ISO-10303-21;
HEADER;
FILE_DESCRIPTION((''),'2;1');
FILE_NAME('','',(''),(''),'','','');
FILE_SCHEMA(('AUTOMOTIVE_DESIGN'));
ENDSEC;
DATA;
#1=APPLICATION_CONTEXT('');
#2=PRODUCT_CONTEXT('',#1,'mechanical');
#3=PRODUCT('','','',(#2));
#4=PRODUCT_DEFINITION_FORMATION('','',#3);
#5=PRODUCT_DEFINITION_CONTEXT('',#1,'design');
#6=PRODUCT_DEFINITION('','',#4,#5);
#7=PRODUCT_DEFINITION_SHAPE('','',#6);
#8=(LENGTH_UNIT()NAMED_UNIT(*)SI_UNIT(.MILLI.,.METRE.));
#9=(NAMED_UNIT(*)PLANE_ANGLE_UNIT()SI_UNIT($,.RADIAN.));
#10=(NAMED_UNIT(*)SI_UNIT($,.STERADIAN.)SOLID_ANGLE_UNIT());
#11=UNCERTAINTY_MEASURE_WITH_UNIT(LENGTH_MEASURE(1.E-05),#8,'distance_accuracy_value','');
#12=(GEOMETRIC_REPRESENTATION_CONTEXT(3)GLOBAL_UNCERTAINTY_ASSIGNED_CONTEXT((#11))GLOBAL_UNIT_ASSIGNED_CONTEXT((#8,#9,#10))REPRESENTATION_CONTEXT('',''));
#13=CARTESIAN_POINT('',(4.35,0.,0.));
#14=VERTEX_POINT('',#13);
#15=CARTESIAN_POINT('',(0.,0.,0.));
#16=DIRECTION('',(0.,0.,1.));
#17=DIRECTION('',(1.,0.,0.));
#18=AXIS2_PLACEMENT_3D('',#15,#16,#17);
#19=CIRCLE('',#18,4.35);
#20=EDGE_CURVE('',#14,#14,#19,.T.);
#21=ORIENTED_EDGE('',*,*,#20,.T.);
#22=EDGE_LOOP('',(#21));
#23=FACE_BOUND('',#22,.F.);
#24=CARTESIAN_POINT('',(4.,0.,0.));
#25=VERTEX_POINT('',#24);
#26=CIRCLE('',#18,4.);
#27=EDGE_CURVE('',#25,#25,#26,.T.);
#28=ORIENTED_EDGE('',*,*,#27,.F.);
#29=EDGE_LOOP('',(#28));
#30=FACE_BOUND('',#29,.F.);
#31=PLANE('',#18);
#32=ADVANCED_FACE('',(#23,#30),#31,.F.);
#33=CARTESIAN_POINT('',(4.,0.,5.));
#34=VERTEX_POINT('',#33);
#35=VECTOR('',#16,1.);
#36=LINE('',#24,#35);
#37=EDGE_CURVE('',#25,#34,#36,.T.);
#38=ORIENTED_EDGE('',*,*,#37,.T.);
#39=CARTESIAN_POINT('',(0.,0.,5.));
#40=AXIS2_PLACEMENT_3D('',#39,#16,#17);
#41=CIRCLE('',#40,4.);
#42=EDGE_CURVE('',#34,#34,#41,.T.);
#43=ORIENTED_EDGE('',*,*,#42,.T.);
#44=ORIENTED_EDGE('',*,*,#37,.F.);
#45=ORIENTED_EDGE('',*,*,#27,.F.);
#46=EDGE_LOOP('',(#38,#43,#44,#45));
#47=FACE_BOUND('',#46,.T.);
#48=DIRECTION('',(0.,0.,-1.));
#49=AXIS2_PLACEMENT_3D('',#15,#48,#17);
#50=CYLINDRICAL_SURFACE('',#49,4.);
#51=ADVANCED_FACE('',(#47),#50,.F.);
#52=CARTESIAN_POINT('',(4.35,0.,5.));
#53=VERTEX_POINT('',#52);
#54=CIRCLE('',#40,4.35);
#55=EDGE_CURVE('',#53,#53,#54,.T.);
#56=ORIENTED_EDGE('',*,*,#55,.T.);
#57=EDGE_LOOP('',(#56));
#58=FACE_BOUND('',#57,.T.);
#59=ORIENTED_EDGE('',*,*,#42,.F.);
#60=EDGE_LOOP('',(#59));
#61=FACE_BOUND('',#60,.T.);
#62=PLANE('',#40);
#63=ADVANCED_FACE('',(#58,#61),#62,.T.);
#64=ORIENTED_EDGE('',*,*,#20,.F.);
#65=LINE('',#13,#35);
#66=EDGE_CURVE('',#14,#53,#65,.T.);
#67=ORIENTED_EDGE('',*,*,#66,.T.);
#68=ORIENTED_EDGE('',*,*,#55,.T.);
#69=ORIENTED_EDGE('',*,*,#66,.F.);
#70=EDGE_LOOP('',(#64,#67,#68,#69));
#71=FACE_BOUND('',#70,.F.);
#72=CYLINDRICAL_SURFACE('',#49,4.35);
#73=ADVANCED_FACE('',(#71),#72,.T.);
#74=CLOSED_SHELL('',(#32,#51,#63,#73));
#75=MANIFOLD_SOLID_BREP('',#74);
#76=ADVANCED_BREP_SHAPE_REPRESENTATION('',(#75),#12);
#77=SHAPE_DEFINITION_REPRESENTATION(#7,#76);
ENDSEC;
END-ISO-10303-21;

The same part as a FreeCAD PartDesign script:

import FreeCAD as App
import Part
import Sketcher

V = App.Vector
Q = App.Units.Quantity

doc = App.newDocument("Part")
body = doc.addObject("PartDesign::Body", "Body")

# Sketch on XY plane
sketch1 = body.newObject("Sketcher::SketchObject", "Sketch")
sketch1.AttachmentSupport = (doc.getObject("XY_Plane"), [""])
sketch1.MapMode = "FlatFace"
sketch1.addGeometry(Part.Circle(V(0, 0, 0), V(0, 0, 1), 4.35), False)
sketch1.addGeometry(Part.Circle(V(0, 0, 0), V(0, 0, 1), 4), False)
sketch1.addConstraint(Sketcher.Constraint("Coincident", 0, 3, -1, 1))
sketch1.addConstraint(Sketcher.Constraint("Coincident", 1, 3, -1, 1))
sketch1.addConstraint(Sketcher.Constraint("Diameter", 1, Q("8 mm")))
sketch1.addConstraint(Sketcher.Constraint("Diameter", 0, Q("8.7 mm")))
pad1 = body.newObject("PartDesign::Pad", "Pad")
pad1.Profile = sketch1
pad1.Length = 5

doc.recompute()
